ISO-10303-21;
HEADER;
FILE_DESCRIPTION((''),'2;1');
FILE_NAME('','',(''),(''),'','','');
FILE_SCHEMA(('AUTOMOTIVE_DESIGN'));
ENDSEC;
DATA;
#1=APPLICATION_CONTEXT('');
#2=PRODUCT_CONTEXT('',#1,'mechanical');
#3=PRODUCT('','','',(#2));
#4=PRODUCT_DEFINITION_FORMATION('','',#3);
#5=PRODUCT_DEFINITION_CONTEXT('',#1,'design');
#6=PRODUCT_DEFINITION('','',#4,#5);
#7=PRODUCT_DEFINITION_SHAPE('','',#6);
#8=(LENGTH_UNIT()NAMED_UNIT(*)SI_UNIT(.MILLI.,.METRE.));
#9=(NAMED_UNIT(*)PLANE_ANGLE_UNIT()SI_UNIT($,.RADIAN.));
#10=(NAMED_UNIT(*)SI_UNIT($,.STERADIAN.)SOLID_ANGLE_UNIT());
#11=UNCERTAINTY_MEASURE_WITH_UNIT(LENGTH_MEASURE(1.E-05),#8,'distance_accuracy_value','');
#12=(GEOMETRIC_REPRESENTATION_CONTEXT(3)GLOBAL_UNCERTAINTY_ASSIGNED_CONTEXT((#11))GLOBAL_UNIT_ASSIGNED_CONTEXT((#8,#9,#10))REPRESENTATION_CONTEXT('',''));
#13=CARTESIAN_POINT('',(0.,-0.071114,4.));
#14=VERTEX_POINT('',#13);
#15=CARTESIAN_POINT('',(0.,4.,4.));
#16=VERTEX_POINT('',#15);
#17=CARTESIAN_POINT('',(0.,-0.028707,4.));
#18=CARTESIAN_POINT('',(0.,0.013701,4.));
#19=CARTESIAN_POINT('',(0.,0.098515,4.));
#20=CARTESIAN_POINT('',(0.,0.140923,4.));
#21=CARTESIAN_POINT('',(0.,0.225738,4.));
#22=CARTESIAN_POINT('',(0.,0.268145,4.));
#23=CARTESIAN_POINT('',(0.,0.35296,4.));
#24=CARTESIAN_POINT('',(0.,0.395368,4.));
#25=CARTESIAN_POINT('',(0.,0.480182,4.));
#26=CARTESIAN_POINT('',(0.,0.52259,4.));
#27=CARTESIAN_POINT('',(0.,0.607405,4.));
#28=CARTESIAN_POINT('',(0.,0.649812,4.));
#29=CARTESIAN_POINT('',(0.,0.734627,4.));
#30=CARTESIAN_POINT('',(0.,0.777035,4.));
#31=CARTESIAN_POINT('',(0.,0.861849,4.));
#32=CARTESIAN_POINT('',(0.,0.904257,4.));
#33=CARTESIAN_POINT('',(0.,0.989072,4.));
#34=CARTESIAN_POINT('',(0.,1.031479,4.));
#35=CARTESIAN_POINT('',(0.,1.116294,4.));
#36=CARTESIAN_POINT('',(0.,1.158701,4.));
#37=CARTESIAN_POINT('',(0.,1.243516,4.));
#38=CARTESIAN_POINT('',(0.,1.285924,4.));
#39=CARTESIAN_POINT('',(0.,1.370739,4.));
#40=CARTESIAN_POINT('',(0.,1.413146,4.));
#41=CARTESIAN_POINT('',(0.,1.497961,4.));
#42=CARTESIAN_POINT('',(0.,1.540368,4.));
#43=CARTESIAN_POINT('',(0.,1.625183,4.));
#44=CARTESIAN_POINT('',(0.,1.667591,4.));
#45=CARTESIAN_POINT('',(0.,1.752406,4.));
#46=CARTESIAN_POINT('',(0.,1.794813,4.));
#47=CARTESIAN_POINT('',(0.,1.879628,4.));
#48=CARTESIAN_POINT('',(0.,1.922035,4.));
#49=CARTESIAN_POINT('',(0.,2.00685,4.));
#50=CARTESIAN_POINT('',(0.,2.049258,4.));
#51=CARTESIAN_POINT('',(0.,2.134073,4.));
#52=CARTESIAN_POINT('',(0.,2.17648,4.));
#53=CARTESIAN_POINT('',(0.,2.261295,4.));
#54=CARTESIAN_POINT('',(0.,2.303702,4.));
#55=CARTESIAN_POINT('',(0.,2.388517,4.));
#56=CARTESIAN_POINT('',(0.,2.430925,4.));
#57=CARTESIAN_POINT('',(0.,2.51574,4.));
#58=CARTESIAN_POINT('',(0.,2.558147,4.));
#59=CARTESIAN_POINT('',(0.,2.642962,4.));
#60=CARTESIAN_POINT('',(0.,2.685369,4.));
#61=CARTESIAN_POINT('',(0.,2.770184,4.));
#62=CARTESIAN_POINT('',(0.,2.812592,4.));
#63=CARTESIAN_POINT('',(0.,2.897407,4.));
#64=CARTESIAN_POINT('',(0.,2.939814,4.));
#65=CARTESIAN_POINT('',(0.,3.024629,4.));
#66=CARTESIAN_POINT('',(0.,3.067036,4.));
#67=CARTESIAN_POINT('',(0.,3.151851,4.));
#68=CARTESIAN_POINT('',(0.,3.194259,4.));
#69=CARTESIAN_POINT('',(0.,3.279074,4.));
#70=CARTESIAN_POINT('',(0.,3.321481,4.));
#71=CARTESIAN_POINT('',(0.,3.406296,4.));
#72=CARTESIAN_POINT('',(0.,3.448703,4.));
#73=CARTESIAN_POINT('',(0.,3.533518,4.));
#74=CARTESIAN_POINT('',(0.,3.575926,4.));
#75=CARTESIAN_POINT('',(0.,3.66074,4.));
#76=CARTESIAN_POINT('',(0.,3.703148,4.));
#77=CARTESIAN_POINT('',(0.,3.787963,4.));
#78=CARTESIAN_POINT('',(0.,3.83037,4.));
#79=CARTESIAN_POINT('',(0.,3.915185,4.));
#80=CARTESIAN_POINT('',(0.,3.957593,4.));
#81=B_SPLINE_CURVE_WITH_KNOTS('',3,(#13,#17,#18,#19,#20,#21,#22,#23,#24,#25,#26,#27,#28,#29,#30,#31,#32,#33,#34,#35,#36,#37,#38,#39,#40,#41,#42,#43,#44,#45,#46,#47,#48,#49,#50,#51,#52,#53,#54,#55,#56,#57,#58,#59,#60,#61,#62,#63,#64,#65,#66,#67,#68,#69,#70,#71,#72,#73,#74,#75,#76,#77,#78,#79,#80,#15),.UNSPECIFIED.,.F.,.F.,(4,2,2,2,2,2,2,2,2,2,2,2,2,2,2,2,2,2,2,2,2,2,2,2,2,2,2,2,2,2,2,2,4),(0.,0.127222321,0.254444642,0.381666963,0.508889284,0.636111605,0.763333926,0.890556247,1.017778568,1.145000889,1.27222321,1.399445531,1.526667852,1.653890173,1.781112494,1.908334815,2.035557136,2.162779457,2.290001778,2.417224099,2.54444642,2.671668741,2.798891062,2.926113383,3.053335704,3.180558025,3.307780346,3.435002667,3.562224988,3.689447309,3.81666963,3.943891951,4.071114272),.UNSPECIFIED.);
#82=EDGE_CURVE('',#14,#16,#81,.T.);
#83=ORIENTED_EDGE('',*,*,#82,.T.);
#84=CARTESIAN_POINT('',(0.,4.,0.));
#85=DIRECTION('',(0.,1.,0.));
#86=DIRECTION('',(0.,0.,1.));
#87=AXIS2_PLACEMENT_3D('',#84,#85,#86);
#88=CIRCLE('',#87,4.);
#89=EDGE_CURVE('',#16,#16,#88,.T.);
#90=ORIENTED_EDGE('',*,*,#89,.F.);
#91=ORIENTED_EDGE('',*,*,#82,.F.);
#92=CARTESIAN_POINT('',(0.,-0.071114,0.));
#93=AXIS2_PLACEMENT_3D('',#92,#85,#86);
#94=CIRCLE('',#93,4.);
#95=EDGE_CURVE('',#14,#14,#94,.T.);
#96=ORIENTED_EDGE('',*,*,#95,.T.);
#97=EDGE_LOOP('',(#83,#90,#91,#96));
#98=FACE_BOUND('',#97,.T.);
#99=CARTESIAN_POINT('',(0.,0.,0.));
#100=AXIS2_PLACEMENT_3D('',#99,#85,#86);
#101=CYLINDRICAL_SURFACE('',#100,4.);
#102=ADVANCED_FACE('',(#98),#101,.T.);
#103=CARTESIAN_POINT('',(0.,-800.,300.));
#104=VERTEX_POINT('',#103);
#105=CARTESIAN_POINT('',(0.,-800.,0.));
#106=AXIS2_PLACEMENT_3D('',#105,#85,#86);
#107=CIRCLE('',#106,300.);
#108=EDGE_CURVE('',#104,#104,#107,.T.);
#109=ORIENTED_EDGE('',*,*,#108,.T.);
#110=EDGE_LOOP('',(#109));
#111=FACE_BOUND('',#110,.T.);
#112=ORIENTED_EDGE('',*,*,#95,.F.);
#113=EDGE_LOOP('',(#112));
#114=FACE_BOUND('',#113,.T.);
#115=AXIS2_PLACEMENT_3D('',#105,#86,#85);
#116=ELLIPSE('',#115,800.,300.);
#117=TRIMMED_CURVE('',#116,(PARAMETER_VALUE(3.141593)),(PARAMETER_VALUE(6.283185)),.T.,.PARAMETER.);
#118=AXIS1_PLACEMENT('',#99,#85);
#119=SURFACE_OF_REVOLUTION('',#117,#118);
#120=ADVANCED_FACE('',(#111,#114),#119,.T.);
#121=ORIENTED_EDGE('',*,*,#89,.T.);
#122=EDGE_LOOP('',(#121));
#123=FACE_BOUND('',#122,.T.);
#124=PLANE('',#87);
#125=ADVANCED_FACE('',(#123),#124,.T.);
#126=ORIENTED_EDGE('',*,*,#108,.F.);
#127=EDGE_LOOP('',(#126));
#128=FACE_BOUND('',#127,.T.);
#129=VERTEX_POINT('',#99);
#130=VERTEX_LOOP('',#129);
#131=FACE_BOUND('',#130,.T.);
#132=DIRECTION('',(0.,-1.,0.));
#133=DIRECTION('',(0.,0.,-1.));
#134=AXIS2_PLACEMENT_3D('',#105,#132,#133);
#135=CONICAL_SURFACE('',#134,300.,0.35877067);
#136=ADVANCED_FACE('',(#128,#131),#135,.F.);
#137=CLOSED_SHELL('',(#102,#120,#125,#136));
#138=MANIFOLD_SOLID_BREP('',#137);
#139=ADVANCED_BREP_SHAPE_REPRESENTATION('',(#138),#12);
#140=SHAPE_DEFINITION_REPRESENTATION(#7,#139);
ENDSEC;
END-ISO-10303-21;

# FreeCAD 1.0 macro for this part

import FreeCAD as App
import Part
import Sketcher

doc = App.newDocument("Part")
body = doc.addObject("PartDesign::Body", "Body")

# Sketch on XY plane
sketch1 = body.newObject("Sketcher::SketchObject", "Sketch")
sketch1.AttachmentSupport = (doc.getObject("XY_Plane"), [""])
sketch1.MapMode = "FlatFace"
sketch1.addGeometry(Part.LineSegment(App.Vector(0, 0, 0), App.Vector(300, -800, 0)), False)
sketch1.addGeometry(Part.BSplineCurve([App.Vector(300, -800, 0), App.Vector(300, -10.596494, 0), App.Vector(4, -0.071114, 0)], [3, 3], [4.71238898, 6.269851579], False, 2, [1, 0.711805217, 1], False), False)
sketch1.addGeometry(Part.LineSegment(App.Vector(4, -0.071114, 0), App.Vector(4, 4, 0)), False)
sketch1.addGeometry(Part.LineSegment(App.Vector(4, 4, 0), App.Vector(0, 4, 0)), False)
sketch1.addGeometry(Part.LineSegment(App.Vector(0, 4, 0), App.Vector(0, 0, 0)), False)
sketch1.addConstraint(Sketcher.Constraint("Block", 1))
sketch1.addConstraint(Sketcher.Constraint("Coincident", 0, 2, 1, 1))
sketch1.addConstraint(Sketcher.Constraint("Coincident", 1, 2, 2, 1))
sketch1.addConstraint(Sketcher.Constraint("Coincident", 2, 2, 3, 1))
sketch1.addConstraint(Sketcher.Constraint("Coincident", 3, 2, 4, 1))
sketch1.addConstraint(Sketcher.Constraint("Coincident", 4, 2, 0, 1))
sketch1.addConstraint(Sketcher.Constraint("Vertical", 2))
sketch1.addConstraint(Sketcher.Constraint("Horizontal", 3))
sketch1.addConstraint(Sketcher.Constraint("Vertical", 4))
sketch1.addConstraint(Sketcher.Constraint("Coincident", 4, 2, -1, 1))
sketch1.addConstraint(Sketcher.Constraint("Equal", 3, 4))
revolution = body.newObject("PartDesign::Revolution", "Revolution")
revolution.Profile = sketch1
revolution.ReferenceAxis = (sketch1, ["V_Axis"])
revolution.Angle = 360

doc.recompute()
